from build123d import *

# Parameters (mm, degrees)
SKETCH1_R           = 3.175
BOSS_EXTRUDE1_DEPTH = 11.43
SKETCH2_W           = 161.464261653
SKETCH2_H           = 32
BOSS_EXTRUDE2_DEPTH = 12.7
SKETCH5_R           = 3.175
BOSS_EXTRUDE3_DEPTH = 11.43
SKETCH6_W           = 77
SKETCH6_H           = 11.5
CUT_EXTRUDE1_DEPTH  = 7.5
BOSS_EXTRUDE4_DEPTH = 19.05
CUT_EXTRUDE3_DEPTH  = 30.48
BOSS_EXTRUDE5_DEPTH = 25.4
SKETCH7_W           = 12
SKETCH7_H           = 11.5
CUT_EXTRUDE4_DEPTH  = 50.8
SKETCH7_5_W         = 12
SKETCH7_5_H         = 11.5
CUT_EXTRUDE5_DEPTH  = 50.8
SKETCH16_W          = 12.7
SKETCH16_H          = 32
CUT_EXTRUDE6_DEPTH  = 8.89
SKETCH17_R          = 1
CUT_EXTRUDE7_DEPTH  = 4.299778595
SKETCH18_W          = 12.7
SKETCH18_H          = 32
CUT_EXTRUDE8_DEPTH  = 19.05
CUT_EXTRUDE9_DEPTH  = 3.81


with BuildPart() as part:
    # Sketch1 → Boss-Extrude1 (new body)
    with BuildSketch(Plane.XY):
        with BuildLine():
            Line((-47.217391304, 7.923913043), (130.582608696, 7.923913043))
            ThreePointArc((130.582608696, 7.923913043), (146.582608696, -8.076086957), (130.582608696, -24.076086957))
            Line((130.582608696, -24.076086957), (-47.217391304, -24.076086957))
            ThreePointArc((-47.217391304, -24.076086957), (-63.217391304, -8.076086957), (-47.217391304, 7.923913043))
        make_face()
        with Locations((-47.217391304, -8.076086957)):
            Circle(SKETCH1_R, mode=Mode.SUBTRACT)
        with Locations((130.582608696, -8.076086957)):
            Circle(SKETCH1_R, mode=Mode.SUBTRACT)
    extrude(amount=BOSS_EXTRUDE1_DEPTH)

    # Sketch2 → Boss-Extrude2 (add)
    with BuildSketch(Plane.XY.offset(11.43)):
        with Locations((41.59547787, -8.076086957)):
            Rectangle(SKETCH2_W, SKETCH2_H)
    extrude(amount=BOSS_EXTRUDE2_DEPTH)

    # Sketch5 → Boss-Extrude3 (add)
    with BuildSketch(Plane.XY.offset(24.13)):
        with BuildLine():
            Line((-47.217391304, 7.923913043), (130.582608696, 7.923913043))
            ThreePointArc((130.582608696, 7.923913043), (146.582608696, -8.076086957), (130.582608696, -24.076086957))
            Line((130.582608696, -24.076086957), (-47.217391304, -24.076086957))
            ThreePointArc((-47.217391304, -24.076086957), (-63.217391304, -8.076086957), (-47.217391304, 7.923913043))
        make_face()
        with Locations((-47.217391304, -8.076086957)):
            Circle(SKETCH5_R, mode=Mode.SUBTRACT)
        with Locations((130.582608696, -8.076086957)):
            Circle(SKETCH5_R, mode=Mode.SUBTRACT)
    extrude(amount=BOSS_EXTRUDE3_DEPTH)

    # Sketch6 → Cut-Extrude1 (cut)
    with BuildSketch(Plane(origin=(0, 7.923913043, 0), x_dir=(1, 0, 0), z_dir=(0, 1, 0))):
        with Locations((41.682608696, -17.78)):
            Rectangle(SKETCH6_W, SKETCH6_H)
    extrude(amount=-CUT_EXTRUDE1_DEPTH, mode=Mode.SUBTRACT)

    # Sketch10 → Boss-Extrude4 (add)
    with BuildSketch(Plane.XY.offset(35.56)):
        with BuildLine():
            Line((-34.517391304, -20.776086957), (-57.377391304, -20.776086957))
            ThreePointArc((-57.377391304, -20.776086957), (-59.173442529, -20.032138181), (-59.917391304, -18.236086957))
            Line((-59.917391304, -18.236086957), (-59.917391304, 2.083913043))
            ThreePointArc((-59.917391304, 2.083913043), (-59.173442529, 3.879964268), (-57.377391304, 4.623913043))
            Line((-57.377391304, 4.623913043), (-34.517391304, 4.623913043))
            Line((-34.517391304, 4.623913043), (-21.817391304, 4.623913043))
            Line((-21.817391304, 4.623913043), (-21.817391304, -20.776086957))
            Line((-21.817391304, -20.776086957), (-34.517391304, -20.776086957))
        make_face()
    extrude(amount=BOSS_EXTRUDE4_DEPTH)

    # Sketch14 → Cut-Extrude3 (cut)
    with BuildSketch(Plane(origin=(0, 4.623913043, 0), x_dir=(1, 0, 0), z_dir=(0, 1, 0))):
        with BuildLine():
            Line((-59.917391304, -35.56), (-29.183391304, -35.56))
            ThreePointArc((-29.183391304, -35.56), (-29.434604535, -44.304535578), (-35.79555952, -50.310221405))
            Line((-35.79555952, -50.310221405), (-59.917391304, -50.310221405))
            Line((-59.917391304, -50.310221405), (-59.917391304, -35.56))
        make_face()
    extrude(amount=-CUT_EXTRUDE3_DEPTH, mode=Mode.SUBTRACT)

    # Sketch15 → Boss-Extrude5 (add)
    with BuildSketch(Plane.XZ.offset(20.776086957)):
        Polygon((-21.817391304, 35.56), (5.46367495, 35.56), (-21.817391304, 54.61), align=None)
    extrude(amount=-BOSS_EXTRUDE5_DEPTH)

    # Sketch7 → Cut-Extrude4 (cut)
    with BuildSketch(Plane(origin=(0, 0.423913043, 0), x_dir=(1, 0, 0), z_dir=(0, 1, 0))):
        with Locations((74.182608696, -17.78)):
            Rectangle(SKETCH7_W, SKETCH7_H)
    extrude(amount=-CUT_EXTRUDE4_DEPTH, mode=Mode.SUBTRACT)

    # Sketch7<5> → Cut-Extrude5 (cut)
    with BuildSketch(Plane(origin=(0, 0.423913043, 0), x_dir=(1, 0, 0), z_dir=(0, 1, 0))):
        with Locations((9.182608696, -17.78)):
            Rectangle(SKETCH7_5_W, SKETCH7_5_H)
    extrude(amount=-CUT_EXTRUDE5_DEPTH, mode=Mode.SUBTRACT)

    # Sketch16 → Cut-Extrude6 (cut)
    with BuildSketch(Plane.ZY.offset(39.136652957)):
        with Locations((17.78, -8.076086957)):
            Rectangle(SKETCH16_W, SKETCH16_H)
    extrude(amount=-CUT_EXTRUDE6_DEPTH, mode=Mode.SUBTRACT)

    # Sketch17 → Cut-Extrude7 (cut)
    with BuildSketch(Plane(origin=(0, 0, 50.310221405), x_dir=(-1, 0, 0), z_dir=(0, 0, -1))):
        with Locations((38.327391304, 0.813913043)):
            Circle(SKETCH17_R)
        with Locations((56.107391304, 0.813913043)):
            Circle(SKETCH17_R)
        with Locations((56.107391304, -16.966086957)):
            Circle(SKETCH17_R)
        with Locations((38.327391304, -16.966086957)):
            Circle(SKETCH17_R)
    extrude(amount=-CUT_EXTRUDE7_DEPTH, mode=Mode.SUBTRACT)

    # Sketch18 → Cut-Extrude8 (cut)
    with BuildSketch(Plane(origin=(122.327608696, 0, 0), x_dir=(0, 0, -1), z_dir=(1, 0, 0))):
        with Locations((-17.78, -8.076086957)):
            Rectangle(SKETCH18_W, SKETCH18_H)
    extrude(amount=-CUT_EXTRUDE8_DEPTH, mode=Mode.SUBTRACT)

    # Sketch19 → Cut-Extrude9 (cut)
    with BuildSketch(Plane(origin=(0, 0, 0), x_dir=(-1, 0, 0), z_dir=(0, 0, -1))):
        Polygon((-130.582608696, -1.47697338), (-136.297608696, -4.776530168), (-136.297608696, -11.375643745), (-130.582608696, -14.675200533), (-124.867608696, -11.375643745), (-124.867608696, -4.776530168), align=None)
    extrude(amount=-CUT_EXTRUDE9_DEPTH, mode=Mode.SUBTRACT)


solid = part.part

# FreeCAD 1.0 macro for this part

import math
import FreeCAD as App
import Part
import Sketcher
from FreeCAD import Vector
Q = App.Units.Quantity


def add_polygon(sketch, points):
    """Adds a closed chain of lines whose ends are joined by coincident constraints."""
    first, n = sketch.GeometryCount, len(points)
    for a, b in zip(points, points[1:] + points[:1]):
        sketch.addGeometry(Part.LineSegment(App.Vector(*a, 0), App.Vector(*b, 0)), False)
    for i in range(n):
        sketch.addConstraint(Sketcher.Constraint("Coincident", first + i, 2, first + (i + 1) % n, 1))

doc = App.newDocument("Part")
body = doc.addObject("PartDesign::Body", "Body")

# Sketch on XY plane
sketch1 = body.newObject("Sketcher::SketchObject", "Sketch")
sketch1.AttachmentSupport = (doc.getObject("XY_Plane"), [""])
sketch1.MapMode = "FlatFace"
sketch1.addGeometry([
    Part.LineSegment(Vector(130.582609, 7.923913, 0), Vector(-47.217391, 7.923913, 0)),  # 0
    Part.ArcOfCircle(Part.Circle(Vector(-47.217391, -8.076087, 0), Vector(0, 0, 1), 16), math.radians(90), math.radians(270)),  # 1
    Part.LineSegment(Vector(-47.217391, -24.076087, 0), Vector(130.582609, -24.076087, 0)),  # 2
    Part.ArcOfCircle(Part.Circle(Vector(130.582609, -8.076087, 0), Vector(0, 0, 1), 16), math.radians(-90), math.radians(90)),  # 3
    Part.Circle(Vector(130.582609, -8.076087, 0), Vector(0, 0, 1), 3.175),  # 4
    Part.Circle(Vector(-47.217391, -8.076087, 0), Vector(0, 0, 1), 3.175),  # 5
], False)
sketch1.addConstraint([
    Sketcher.Constraint("Tangent", 0, 2, 1, 1),
    Sketcher.Constraint("Tangent", 1, 2, 2, 1),
    Sketcher.Constraint("Tangent", 2, 2, 3, 1),
    Sketcher.Constraint("Tangent", 3, 2, 0, 1),
    Sketcher.Constraint("Horizontal", 0),
    Sketcher.Constraint("Horizontal", 2),
    Sketcher.Constraint("Coincident", 4, 3, 3, 3),
    Sketcher.Constraint("Coincident", 5, 3, 1, 3),
    Sketcher.Constraint("Equal", 4, 5),
    Sketcher.Constraint("Diameter", 4, Q("0.25 in")),
    Sketcher.Constraint("DistanceX", 0, 2, 0, 1, Q("7 in")),
    Sketcher.Constraint("Radius", 1, 16.0),
    Sketcher.Constraint("DistanceX", 1, 3, -1, 1, 47.217391),
    Sketcher.Constraint("DistanceY", 1, 3, -1, 1, 8.076087),
])
pad1 = body.newObject("PartDesign::Pad", "Pad")
pad1.Profile = sketch1
pad1.Length = Q("0.45 in")

# Sketch on XY plane
sketch2 = body.newObject("Sketcher::SketchObject", "Sketch001")
sketch2.AttachmentSupport = (doc.getObject("XY_Plane"), [""])
sketch2.MapMode = "FlatFace"
sketch2.AttachmentOffset = App.Placement(Vector(0, 0, 0.45 * 25.4), App.Rotation())
add_polygon(sketch2, [(-39.136653, 7.923913), (-39.136653, -24.076087), (122.327609, -24.076087), (122.327609, 7.923913)])  # lines 0-3
sketch2.addConstraint([
    Sketcher.Constraint("Vertical", 0),
    Sketcher.Constraint("Horizontal", 1),
    Sketcher.Constraint("Vertical", 2),
    Sketcher.Constraint("Horizontal", 3),
    Sketcher.Constraint("DistanceY", 0, 2, 0, 1, 32.0),
    Sketcher.Constraint("DistanceX", 1, 1, 1, 2, 161.464262),
    Sketcher.Constraint("DistanceX", -1, 1, 1, 2, 122.327609),
    Sketcher.Constraint("DistanceY", 0, 2, -1, 1, 24.076087),
])
pad2 = body.newObject("PartDesign::Pad", "Pad001")
pad2.Profile = sketch2
pad2.Length = Q("0.5 in")

# Sketch on XY plane
sketch3 = body.newObject("Sketcher::SketchObject", "Sketch002")
sketch3.AttachmentSupport = (doc.getObject("XY_Plane"), [""])
sketch3.MapMode = "FlatFace"
sketch3.AttachmentOffset = App.Placement(Vector(0, 0, 0.95 * 25.4), App.Rotation())
sketch3.addGeometry([
    Part.LineSegment(Vector(130.582609, 7.923913, 0), Vector(-47.217391, 7.923913, 0)),  # 0
    Part.ArcOfCircle(Part.Circle(Vector(-47.217391, -8.076087, 0), Vector(0, 0, 1), 16), math.radians(90), math.radians(270)),  # 1
    Part.LineSegment(Vector(-47.217391, -24.076087, 0), Vector(130.582609, -24.076087, 0)),  # 2
    Part.ArcOfCircle(Part.Circle(Vector(130.582609, -8.076087, 0), Vector(0, 0, 1), 16), math.radians(-90), math.radians(90)),  # 3
    Part.Circle(Vector(130.582609, -8.076087, 0), Vector(0, 0, 1), 3.175),  # 4
    Part.Circle(Vector(-47.217391, -8.076087, 0), Vector(0, 0, 1), 3.175),  # 5
], False)
sketch3.addConstraint([
    Sketcher.Constraint("Tangent", 0, 2, 1, 1),
    Sketcher.Constraint("Tangent", 1, 2, 2, 1),
    Sketcher.Constraint("Tangent", 2, 2, 3, 1),
    Sketcher.Constraint("Tangent", 3, 2, 0, 1),
    Sketcher.Constraint("Horizontal", 0),
    Sketcher.Constraint("Horizontal", 2),
    Sketcher.Constraint("Coincident", 4, 3, 3, 3),
    Sketcher.Constraint("Coincident", 5, 3, 1, 3),
    Sketcher.Constraint("Equal", 4, 5),
    Sketcher.Constraint("Diameter", 4, Q("0.25 in")),
    Sketcher.Constraint("DistanceX", 0, 2, 0, 1, Q("7 in")),
    Sketcher.Constraint("Radius", 1, 16.0),
    Sketcher.Constraint("DistanceX", 1, 3, -1, 1, 47.217391),
    Sketcher.Constraint("DistanceY", 1, 3, -1, 1, 8.076087),
])
pad3 = body.newObject("PartDesign::Pad", "Pad002")
pad3.Profile = sketch3
pad3.Length = Q("0.45 in")

# Sketch on XZ plane
sketch4 = body.newObject("Sketcher::SketchObject", "Sketch003")
sketch4.AttachmentSupport = (doc.getObject("XZ_Plane"), [""])
sketch4.MapMode = "FlatFace"
sketch4.AttachmentOffset = App.Placement(Vector(0, 0, -7.923913), App.Rotation())
add_polygon(sketch4, [(3.182609, 12.03), (3.182609, 23.53), (80.182609, 23.53), (80.182609, 12.03)])  # lines 0-3
sketch4.addConstraint([
    Sketcher.Constraint("Vertical", 0),
    Sketcher.Constraint("Horizontal", 1),
    Sketcher.Constraint("Vertical", 2),
    Sketcher.Constraint("Horizontal", 3),
    Sketcher.Constraint("DistanceX", 1, 1, 1, 2, 77.0),
    Sketcher.Constraint("DistanceY", 0, 1, 0, 2, 11.5),
    Sketcher.Constraint("DistanceY", -1, 1, 0, 2, 23.53),
    Sketcher.Constraint("DistanceX", -1, 1, 0, 2, 3.182609),
])
pocket1 = body.newObject("PartDesign::Pocket", "Pocket")
pocket1.Profile = sketch4
pocket1.Length = 7.5
pocket1.Reversed = True

# Sketch on XY plane
sketch5 = body.newObject("Sketcher::SketchObject", "Sketch004")
sketch5.AttachmentSupport = (doc.getObject("XY_Plane"), [""])
sketch5.MapMode = "FlatFace"
sketch5.AttachmentOffset = App.Placement(Vector(0, 0, 1.4 * 25.4), App.Rotation())
sketch5.addGeometry([
    Part.ArcOfCircle(Part.Circle(Vector(-57.377391, -18.236087, 0), Vector(0, 0, 1), 2.54), math.radians(180), math.radians(270)),  # 0
    Part.LineSegment(Vector(-57.377391, -20.776087, 0), Vector(-21.817391, -20.776087, 0)),  # 1
    Part.LineSegment(Vector(-21.817391, -20.776087, 0), Vector(-21.817391, 4.623913, 0)),  # 2
    Part.LineSegment(Vector(-21.817391, 4.623913, 0), Vector(-57.377391, 4.623913, 0)),  # 3
    Part.ArcOfCircle(Part.Circle(Vector(-57.377391, 2.083913, 0), Vector(0, 0, 1), 2.54), math.radians(90), math.radians(180)),  # 4
    Part.LineSegment(Vector(-59.917391, 2.083913, 0), Vector(-59.917391, -18.236087, 0)),  # 5
], False)
sketch5.addConstraint([
    Sketcher.Constraint("Tangent", 0, 2, 1, 1),
    Sketcher.Constraint("Coincident", 1, 2, 2, 1),
    Sketcher.Constraint("Coincident", 2, 2, 3, 1),
    Sketcher.Constraint("Tangent", 3, 2, 4, 1),
    Sketcher.Constraint("Tangent", 4, 2, 5, 1),
    Sketcher.Constraint("Tangent", 5, 2, 0, 1),
    Sketcher.Constraint("Horizontal", 1),
    Sketcher.Constraint("Vertical", 2),
    Sketcher.Constraint("Horizontal", 3),
    Sketcher.Constraint("Vertical", 5),
    Sketcher.Constraint("Equal", 0, 4),
    Sketcher.Constraint("Radius", 0, Q("0.1 in")),
    Sketcher.Constraint("DistanceY", 2, 1, 2, 2, Q("1 in")),
    Sketcher.Constraint("DistanceX", 1, 1, 1, 2, Q("1.4 in")),
    Sketcher.Constraint("DistanceX", 0, 3, -1, 1, 57.377391),
    Sketcher.Constraint("DistanceY", 0, 3, -1, 1, 18.236087),
])
pad4 = body.newObject("PartDesign::Pad", "Pad003")
pad4.Profile = sketch5
pad4.Length = Q("0.75 in")

# Sketch on XZ plane
sketch6 = body.newObject("Sketcher::SketchObject", "Sketch005")
sketch6.AttachmentSupport = (doc.getObject("XZ_Plane"), [""])
sketch6.MapMode = "FlatFace"
sketch6.AttachmentOffset = App.Placement(Vector(0, 0, -4.623913), App.Rotation())
sketch6.addGeometry([
    Part.LineSegment(Vector(-29.183391, 35.56, 0), Vector(-59.917391, 35.56, 0)),
    Part.LineSegment(Vector(-59.917391, 35.56, 0), Vector(-59.917391, 50.310221, 0)),
    Part.LineSegment(Vector(-59.917391, 50.310221, 0), Vector(-35.79556, 50.310221, 0)),
    Part.ArcOfCircle(Part.Circle(Vector(-39.864586, 39.629027, 0), Vector(0, 0, 1), 11.43), math.radians(-20.854458), math.radians(69.145542)),
], False)
sketch6.addConstraint([
    Sketcher.Constraint("Coincident", 0, 2, 1, 1),
    Sketcher.Constraint("Coincident", 1, 2, 2, 1),
    Sketcher.Constraint("Coincident", 2, 2, 3, 2),
    Sketcher.Constraint("Coincident", 3, 1, 0, 1),
    Sketcher.Constraint("Horizontal", 0),
    Sketcher.Constraint("Vertical", 1),
    Sketcher.Constraint("Horizontal", 2),
    Sketcher.Constraint("Radius", 3, Q("0.45 in")),
    Sketcher.Constraint("DistanceX", 0, 2, 0, 1, Q("1.21 in")),
    Sketcher.Constraint("DistanceY", -1, 1, 0, 2, Q("1.4 in")),
    Sketcher.Constraint("DistanceX", 2, 1, 2, 2, 24.121832),
    Sketcher.Constraint("DistanceY", 1, 1, 1, 2, 14.750221),
    Sketcher.Constraint("DistanceX", 0, 2, -1, 1, 59.917391),
])
pocket2 = body.newObject("PartDesign::Pocket", "Pocket001")
pocket2.Profile = sketch6
pocket2.Length = Q("1.2 in")
pocket2.Reversed = True

# Sketch on XZ plane
sketch7 = body.newObject("Sketcher::SketchObject", "Sketch006")
sketch7.AttachmentSupport = (doc.getObject("XZ_Plane"), [""])
sketch7.MapMode = "FlatFace"
sketch7.AttachmentOffset = App.Placement(Vector(0, 0, 20.776087), App.Rotation())
add_polygon(sketch7, [(-21.817391, 35.56), (5.463675, 35.56), (-21.817391, 54.61)])  # lines 0-2
sketch7.addConstraint([
    Sketcher.Constraint("Horizontal", 0),
    Sketcher.Constraint("Vertical", 2),
    Sketcher.Constraint("DistanceY", 2, 2, 2, 1, Q("0.75 in")),
    Sketcher.Constraint("DistanceY", -1, 1, 0, 2, Q("1.4 in")),
    Sketcher.Constraint("Distance", 1, Q("1.31 in")),
    Sketcher.Constraint("DistanceX", 1, 2, -1, 1, 21.817391),
])
pad5 = body.newObject("PartDesign::Pad", "Pad004")
pad5.Profile = sketch7
pad5.Length = Q("1 in")
pad5.Reversed = True

# Sketch on XZ plane
sketch8 = body.newObject("Sketcher::SketchObject", "Sketch007")
sketch8.AttachmentSupport = (doc.getObject("XZ_Plane"), [""])
sketch8.MapMode = "FlatFace"
sketch8.AttachmentOffset = App.Placement(Vector(0, 0, -0.423913), App.Rotation())
add_polygon(sketch8, [(68.182609, 12.03), (68.182609, 23.53), (80.182609, 23.53), (80.182609, 12.03)])  # lines 0-3
sketch8.addConstraint([
    Sketcher.Constraint("Vertical", 0),
    Sketcher.Constraint("Horizontal", 1),
    Sketcher.Constraint("Vertical", 2),
    Sketcher.Constraint("Horizontal", 3),
    Sketcher.Constraint("DistanceX", 1, 1, 1, 2, 12.0),
    Sketcher.Constraint("DistanceY", 0, 1, 0, 2, 11.5),
    Sketcher.Constraint("DistanceY", -1, 1, 0, 2, 23.53),
    Sketcher.Constraint("DistanceX", -1, 1, 0, 2, 68.182609),
])
pocket3 = body.newObject("PartDesign::Pocket", "Pocket002")
pocket3.Profile = sketch8
pocket3.Length = Q("2 in")
pocket3.Reversed = True

# Sketch on XZ plane
sketch9 = body.newObject("Sketcher::SketchObject", "Sketch008")
sketch9.AttachmentSupport = (doc.getObject("XZ_Plane"), [""])
sketch9.MapMode = "FlatFace"
sketch9.AttachmentOffset = App.Placement(Vector(0, 0, -0.423913), App.Rotation())
add_polygon(sketch9, [(3.182609, 12.03), (3.182609, 23.53), (15.182609, 23.53), (15.182609, 12.03)])  # lines 0-3
sketch9.addConstraint([
    Sketcher.Constraint("Vertical", 0),
    Sketcher.Constraint("Horizontal", 1),
    Sketcher.Constraint("Vertical", 2),
    Sketcher.Constraint("Horizontal", 3),
    Sketcher.Constraint("DistanceX", 1, 1, 1, 2, 12.0),
    Sketcher.Constraint("DistanceY", 0, 1, 0, 2, 11.5),
    Sketcher.Constraint("DistanceY", -1, 1, 0, 2, 23.53),
    Sketcher.Constraint("DistanceX", -1, 1, 0, 2, 3.182609),
])
pocket4 = body.newObject("PartDesign::Pocket", "Pocket003")
pocket4.Profile = sketch9
pocket4.Length = Q("2 in")
pocket4.Reversed = True

# Sketch on YZ plane
sketch10 = body.newObject("Sketcher::SketchObject", "Sketch009")
sketch10.AttachmentSupport = (doc.getObject("YZ_Plane"), [""])
sketch10.MapMode = "FlatFace"
sketch10.AttachmentOffset = App.Placement(Vector(0, 0, -39.136653), App.Rotation())
add_polygon(sketch10, [(7.923913, 11.43), (-24.076087, 11.43), (-24.076087, 24.13), (7.923913, 24.13)])  # lines 0-3
sketch10.addConstraint([
    Sketcher.Constraint("Horizontal", 0),
    Sketcher.Constraint("Vertical", 1),
    Sketcher.Constraint("Horizontal", 2),
    Sketcher.Constraint("Vertical", 3),
    Sketcher.Constraint("DistanceY", 1, 1, 1, 2, Q("0.5 in")),
    Sketcher.Constraint("DistanceY", -1, 1, 0, 2, Q("0.45 in")),
    Sketcher.Constraint("DistanceX", 0, 2, 0, 1, 32.0),
    Sketcher.Constraint("DistanceX", 0, 2, -1, 1, 24.076087),
])
pocket5 = body.newObject("PartDesign::Pocket", "Pocket004")
pocket5.Profile = sketch10
pocket5.Length = Q("0.35 in")
pocket5.Reversed = True

# Sketch on XY plane
sketch11 = body.newObject("Sketcher::SketchObject", "Sketch010")
sketch11.AttachmentSupport = (doc.getObject("XY_Plane"), [""])
sketch11.MapMode = "FlatFace"
sketch11.AttachmentOffset = App.Placement(Vector(0, 0, 50.310221), App.Rotation())
sketch11.addGeometry([
    Part.Circle(Vector(-38.327391, 0.813913, 0), Vector(0, 0, 1), 1),
    Part.Circle(Vector(-56.107391, 0.813913, 0), Vector(0, 0, 1), 1),
    Part.Circle(Vector(-56.107391, -16.966087, 0), Vector(0, 0, 1), 1),
    Part.Circle(Vector(-38.327391, -16.966087, 0), Vector(0, 0, 1), 1),
], False)
sketch11.addConstraint([
    Sketcher.Constraint("Equal", 0, 1),
    Sketcher.Constraint("Equal", 1, 2),
    Sketcher.Constraint("Equal", 2, 3),
    Sketcher.Constraint("Horizontal", 0, 3, 1, 3),
    Sketcher.Constraint("Horizontal", 2, 3, 3, 3),
    Sketcher.Constraint("Vertical", 1, 3, 2, 3),
    Sketcher.Constraint("Vertical", 0, 3, 3, 3),
    Sketcher.Constraint("DistanceX", 1, 3, 0, 3, Q("0.7 in")),
    Sketcher.Constraint("DistanceY", 2, 3, 1, 3, Q("0.7 in")),
    Sketcher.Constraint("Diameter", 0, 2.0),
    Sketcher.Constraint("DistanceX", 0, 3, -1, 1, 38.327391),
    Sketcher.Constraint("DistanceY", -1, 1, 0, 3, 0.813913),
])
pocket6 = body.newObject("PartDesign::Pocket", "Pocket005")
pocket6.Profile = sketch11
pocket6.Length = 4.299779
pocket6.Reversed = True

# Sketch on YZ plane
sketch12 = body.newObject("Sketcher::SketchObject", "Sketch011")
sketch12.AttachmentSupport = (doc.getObject("YZ_Plane"), [""])
sketch12.MapMode = "FlatFace"
sketch12.AttachmentOffset = App.Placement(Vector(0, 0, 122.327609), App.Rotation())
add_polygon(sketch12, [(7.923913, 24.13), (-24.076087, 24.13), (-24.076087, 11.43), (7.923913, 11.43)])  # lines 0-3
sketch12.addConstraint([
    Sketcher.Constraint("Horizontal", 0),
    Sketcher.Constraint("Vertical", 1),
    Sketcher.Constraint("Horizontal", 2),
    Sketcher.Constraint("Vertical", 3),
    Sketcher.Constraint("DistanceY", 1, 2, 1, 1, Q("0.5 in")),
    Sketcher.Constraint("DistanceY", -1, 1, 0, 2, Q("0.95 in")),
    Sketcher.Constraint("DistanceX", 0, 2, 0, 1, 32.0),
    Sketcher.Constraint("DistanceX", 0, 2, -1, 1, 24.076087),
])
pocket7 = body.newObject("PartDesign::Pocket", "Pocket006")
pocket7.Profile = sketch12
pocket7.Length = Q("0.75 in")

# Sketch on XY plane
sketch13 = body.newObject("Sketcher::SketchObject", "Sketch012")
sketch13.AttachmentSupport = (doc.getObject("XY_Plane"), [""])
sketch13.MapMode = "FlatFace"
add_polygon(sketch13, [(130.582609, -1.476973), (136.297609, -4.77653), (136.297609, -11.375644), (130.582609, -14.675201), (124.867609, -11.375644), (124.867609, -4.77653)])  # lines 0-5
sketch13.addConstraint([
    Sketcher.Constraint("Vertical", 1),
    Sketcher.Constraint("Vertical", 4),
    Sketcher.Constraint("Parallel", 0, 3),
    Sketcher.Constraint("Parallel", 2, 5),
    Sketcher.Constraint("Horizontal", 1, 2, 3, 2),
    Sketcher.Constraint("Horizontal", 0, 2, 4, 2),
    Sketcher.Constraint("Vertical", 2, 2, 5, 2),
    Sketcher.Constraint("Angle", 0, Q("-30 deg")),
    Sketcher.Constraint("DistanceX", 3, 2, 1, 2, Q("0.45 in")),
    Sketcher.Constraint("DistanceY", 2, 2, -1, 1, 14.675201),
    Sketcher.Constraint("DistanceY", 1, 2, 1, 1, 6.599114),
    Sketcher.Constraint("DistanceX", -1, 1, 0, 2, 136.297609),
])
pocket8 = body.newObject("PartDesign::Pocket", "Pocket007")
pocket8.Profile = sketch13
pocket8.Length = Q("0.15 in")
pocket8.Reversed = True

doc.recompute()
